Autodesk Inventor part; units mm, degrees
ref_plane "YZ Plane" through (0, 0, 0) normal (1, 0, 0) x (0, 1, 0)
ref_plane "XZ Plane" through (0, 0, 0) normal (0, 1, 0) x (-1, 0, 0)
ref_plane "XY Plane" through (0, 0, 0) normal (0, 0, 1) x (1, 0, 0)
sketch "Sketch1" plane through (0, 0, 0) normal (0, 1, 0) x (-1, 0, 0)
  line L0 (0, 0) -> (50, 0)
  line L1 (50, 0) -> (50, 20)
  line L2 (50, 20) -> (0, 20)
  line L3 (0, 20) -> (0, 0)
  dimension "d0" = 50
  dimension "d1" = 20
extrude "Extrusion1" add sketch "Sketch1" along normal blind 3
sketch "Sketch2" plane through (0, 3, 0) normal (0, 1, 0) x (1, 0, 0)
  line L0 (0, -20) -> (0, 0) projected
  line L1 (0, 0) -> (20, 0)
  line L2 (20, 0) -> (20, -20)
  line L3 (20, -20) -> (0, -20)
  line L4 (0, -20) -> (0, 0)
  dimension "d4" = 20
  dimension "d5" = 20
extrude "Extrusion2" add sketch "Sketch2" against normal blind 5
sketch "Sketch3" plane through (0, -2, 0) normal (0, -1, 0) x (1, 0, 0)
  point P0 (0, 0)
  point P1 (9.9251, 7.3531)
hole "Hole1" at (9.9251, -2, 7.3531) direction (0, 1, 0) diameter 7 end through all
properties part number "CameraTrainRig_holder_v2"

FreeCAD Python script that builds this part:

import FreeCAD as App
import Part
import Sketcher

V = App.Vector


def add_polygon(sketch, points):
    """Adds a closed chain of lines whose ends are joined by coincident constraints."""
    first, n = sketch.GeometryCount, len(points)
    for a, b in zip(points, points[1:] + points[:1]):
        sketch.addGeometry(Part.LineSegment(App.Vector(*a, 0), App.Vector(*b, 0)), False)
    for i in range(n):
        sketch.addConstraint(Sketcher.Constraint("Coincident", first + i, 2, first + (i + 1) % n, 1))

doc = App.newDocument("Part")
params = doc.addObject("Spreadsheet::Sheet", "Params")
for row, (alias, value) in enumerate([
    ("sketch1_width", "50 mm"),
    ("sketch1_height", "20 mm"),
    ("pad1_length", "3 mm"),
    ("sketch2_width", "20 mm"),
    ("pad2_length", "5 mm"),
    ("sketch3_diameter", "7 mm"),
    ("hole_diameter", "7 mm"),
], start=1):
    params.set(f"A{row}", alias)
    params.set(f"B{row}", "=" + value)
    params.setAlias(f"B{row}", alias)

body = doc.addObject("PartDesign::Body", "Body")

# Sketch on XZ plane
sketch1 = body.newObject("Sketcher::SketchObject", "Sketch")
sketch1.AttachmentSupport = (doc.getObject("XZ_Plane"), [""])
sketch1.MapMode = "FlatFace"
add_polygon(sketch1, [(0, 20), (0, 0), (-50, 0), (-50, 20)])  # lines 0-3
sketch1.addConstraint([
    Sketcher.Constraint("Vertical", 0),
    Sketcher.Constraint("Horizontal", 1),
    Sketcher.Constraint("Vertical", 2),
    Sketcher.Constraint("Horizontal", 3),
    Sketcher.Constraint("Coincident", 0, 2, -1, 1),
    Sketcher.Constraint("DistanceX", 1, 2, 1, 1, 50.0),
    Sketcher.Constraint("DistanceY", 0, 2, 0, 1, 20.0),
])
sketch1.setExpression("Constraints[9]", "Params.sketch1_width")
sketch1.setExpression("Constraints[10]", "Params.sketch1_height")
pad1 = body.newObject("PartDesign::Pad", "Pad")
pad1.Profile = sketch1
pad1.setExpression("Length", "Params.pad1_length")
pad1.Reversed = True

# Sketch on XZ plane
sketch2 = body.newObject("Sketcher::SketchObject", "Sketch001")
sketch2.AttachmentSupport = (doc.getObject("XZ_Plane"), [""])
sketch2.MapMode = "FlatFace"
sketch2.AttachmentOffset = App.Placement(V(0, 0, -3), App.Rotation())
add_polygon(sketch2, [(0, 0), (0, 20), (20, 20), (20, 0)])  # lines 0-3
sketch2.addConstraint([
    Sketcher.Constraint("Vertical", 0),
    Sketcher.Constraint("Horizontal", 1),
    Sketcher.Constraint("Vertical", 2),
    Sketcher.Constraint("Horizontal", 3),
    Sketcher.Constraint("Coincident", 3, 2, -1, 1),
    Sketcher.Constraint("Equal", 3, 0),
    Sketcher.Constraint("DistanceX", 1, 1, 1, 2, 20.0),
])
sketch2.setExpression("Constraints[10]", "Params.sketch2_width")
pad2 = body.newObject("PartDesign::Pad", "Pad001")
pad2.Profile = sketch2
pad2.setExpression("Length", "Params.pad2_length")

# Sketch on XZ plane
sketch3 = body.newObject("Sketcher::SketchObject", "Sketch002")
sketch3.AttachmentSupport = (doc.getObject("XZ_Plane"), [""])
sketch3.MapMode = "FlatFace"
sketch3.AttachmentOffset = App.Placement(V(0, 0, 2), App.Rotation())
sketch3.addGeometry(Part.Circle(V(9.9, 7.4, 0), V(0, 0, 1), 3.5), False)
sketch3.addConstraint([
    Sketcher.Constraint("Diameter", 0, 7.0),
    Sketcher.Constraint("DistanceX", -1, 1, 0, 3, 9.925),
    Sketcher.Constraint("DistanceY", -1, 1, 0, 3, 7.353),
])
sketch3.setExpression("Constraints[0]", "Params.sketch3_diameter")
doc.recompute()
hole = body.newObject("PartDesign::Hole", "Hole")
hole.Profile = sketch3
hole.ThreadType = "None"
hole.setExpression("Diameter", "Params.hole_diameter")
hole.DepthType = "ThroughAll"

doc.recompute()
